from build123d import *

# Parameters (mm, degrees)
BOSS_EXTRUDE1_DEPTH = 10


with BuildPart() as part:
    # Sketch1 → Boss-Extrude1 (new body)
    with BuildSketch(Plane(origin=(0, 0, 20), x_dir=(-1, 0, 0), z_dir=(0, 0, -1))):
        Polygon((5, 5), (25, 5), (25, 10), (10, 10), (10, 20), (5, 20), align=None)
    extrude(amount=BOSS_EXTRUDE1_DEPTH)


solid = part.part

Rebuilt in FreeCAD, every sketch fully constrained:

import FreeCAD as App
import Part
import Sketcher

V = App.Vector
Q = App.Units.Quantity

doc = App.newDocument("Part")
body = doc.addObject("PartDesign::Body", "Body")

# Sketch on XY plane
sketch1 = body.newObject("Sketcher::SketchObject", "Sketch")
sketch1.AttachmentSupport = (doc.getObject("XY_Plane"), [""])
sketch1.MapMode = "FlatFace"
sketch1.AttachmentOffset = App.Placement(V(0, 0, 20), App.Rotation())
sketch1.addGeometry([
    Part.LineSegment(V(-5, 5, 0), V(-25, 5, 0)),  # 0
    Part.LineSegment(V(-25, 5, 0), V(-25, 10, 0)),  # 1
    Part.LineSegment(V(-25, 10, 0), V(-10, 10, 0)),  # 2
    Part.LineSegment(V(-10, 10, 0), V(-10, 20, 0)),  # 3
    Part.LineSegment(V(-10, 20, 0), V(-5, 20, 0)),  # 4
    Part.LineSegment(V(-5, 20, 0), V(-5, 5, 0)),  # 5
], False)
sketch1.addConstraint([
    Sketcher.Constraint("Coincident", 0, 2, 1, 1),
    Sketcher.Constraint("Coincident", 1, 2, 2, 1),
    Sketcher.Constraint("Coincident", 2, 2, 3, 1),
    Sketcher.Constraint("Coincident", 3, 2, 4, 1),
    Sketcher.Constraint("Coincident", 4, 2, 5, 1),
    Sketcher.Constraint("Coincident", 5, 2, 0, 1),
    Sketcher.Constraint("Horizontal", 0),
    Sketcher.Constraint("Vertical", 1),
    Sketcher.Constraint("Horizontal", 2),
    Sketcher.Constraint("Vertical", 3),
    Sketcher.Constraint("Horizontal", 4),
    Sketcher.Constraint("Vertical", 5),
    Sketcher.Constraint("Equal", 4, 1),
    Sketcher.Constraint("Equal", 2, 5),
    Sketcher.Constraint("DistanceX", 0, 2, 0, 1, Q("20 mm")),
    Sketcher.Constraint("DistanceX", 2, 1, 2, 2, Q("15 mm")),
    Sketcher.Constraint("DistanceX", 0, 2, -1, 1, Q("25 mm")),
    Sketcher.Constraint("DistanceY", -1, 1, 0, 2, Q("5 mm")),
])
pad1 = body.newObject("PartDesign::Pad", "Pad")
pad1.Profile = sketch1
pad1.Length = 10
pad1.Reversed = True

doc.recompute()
